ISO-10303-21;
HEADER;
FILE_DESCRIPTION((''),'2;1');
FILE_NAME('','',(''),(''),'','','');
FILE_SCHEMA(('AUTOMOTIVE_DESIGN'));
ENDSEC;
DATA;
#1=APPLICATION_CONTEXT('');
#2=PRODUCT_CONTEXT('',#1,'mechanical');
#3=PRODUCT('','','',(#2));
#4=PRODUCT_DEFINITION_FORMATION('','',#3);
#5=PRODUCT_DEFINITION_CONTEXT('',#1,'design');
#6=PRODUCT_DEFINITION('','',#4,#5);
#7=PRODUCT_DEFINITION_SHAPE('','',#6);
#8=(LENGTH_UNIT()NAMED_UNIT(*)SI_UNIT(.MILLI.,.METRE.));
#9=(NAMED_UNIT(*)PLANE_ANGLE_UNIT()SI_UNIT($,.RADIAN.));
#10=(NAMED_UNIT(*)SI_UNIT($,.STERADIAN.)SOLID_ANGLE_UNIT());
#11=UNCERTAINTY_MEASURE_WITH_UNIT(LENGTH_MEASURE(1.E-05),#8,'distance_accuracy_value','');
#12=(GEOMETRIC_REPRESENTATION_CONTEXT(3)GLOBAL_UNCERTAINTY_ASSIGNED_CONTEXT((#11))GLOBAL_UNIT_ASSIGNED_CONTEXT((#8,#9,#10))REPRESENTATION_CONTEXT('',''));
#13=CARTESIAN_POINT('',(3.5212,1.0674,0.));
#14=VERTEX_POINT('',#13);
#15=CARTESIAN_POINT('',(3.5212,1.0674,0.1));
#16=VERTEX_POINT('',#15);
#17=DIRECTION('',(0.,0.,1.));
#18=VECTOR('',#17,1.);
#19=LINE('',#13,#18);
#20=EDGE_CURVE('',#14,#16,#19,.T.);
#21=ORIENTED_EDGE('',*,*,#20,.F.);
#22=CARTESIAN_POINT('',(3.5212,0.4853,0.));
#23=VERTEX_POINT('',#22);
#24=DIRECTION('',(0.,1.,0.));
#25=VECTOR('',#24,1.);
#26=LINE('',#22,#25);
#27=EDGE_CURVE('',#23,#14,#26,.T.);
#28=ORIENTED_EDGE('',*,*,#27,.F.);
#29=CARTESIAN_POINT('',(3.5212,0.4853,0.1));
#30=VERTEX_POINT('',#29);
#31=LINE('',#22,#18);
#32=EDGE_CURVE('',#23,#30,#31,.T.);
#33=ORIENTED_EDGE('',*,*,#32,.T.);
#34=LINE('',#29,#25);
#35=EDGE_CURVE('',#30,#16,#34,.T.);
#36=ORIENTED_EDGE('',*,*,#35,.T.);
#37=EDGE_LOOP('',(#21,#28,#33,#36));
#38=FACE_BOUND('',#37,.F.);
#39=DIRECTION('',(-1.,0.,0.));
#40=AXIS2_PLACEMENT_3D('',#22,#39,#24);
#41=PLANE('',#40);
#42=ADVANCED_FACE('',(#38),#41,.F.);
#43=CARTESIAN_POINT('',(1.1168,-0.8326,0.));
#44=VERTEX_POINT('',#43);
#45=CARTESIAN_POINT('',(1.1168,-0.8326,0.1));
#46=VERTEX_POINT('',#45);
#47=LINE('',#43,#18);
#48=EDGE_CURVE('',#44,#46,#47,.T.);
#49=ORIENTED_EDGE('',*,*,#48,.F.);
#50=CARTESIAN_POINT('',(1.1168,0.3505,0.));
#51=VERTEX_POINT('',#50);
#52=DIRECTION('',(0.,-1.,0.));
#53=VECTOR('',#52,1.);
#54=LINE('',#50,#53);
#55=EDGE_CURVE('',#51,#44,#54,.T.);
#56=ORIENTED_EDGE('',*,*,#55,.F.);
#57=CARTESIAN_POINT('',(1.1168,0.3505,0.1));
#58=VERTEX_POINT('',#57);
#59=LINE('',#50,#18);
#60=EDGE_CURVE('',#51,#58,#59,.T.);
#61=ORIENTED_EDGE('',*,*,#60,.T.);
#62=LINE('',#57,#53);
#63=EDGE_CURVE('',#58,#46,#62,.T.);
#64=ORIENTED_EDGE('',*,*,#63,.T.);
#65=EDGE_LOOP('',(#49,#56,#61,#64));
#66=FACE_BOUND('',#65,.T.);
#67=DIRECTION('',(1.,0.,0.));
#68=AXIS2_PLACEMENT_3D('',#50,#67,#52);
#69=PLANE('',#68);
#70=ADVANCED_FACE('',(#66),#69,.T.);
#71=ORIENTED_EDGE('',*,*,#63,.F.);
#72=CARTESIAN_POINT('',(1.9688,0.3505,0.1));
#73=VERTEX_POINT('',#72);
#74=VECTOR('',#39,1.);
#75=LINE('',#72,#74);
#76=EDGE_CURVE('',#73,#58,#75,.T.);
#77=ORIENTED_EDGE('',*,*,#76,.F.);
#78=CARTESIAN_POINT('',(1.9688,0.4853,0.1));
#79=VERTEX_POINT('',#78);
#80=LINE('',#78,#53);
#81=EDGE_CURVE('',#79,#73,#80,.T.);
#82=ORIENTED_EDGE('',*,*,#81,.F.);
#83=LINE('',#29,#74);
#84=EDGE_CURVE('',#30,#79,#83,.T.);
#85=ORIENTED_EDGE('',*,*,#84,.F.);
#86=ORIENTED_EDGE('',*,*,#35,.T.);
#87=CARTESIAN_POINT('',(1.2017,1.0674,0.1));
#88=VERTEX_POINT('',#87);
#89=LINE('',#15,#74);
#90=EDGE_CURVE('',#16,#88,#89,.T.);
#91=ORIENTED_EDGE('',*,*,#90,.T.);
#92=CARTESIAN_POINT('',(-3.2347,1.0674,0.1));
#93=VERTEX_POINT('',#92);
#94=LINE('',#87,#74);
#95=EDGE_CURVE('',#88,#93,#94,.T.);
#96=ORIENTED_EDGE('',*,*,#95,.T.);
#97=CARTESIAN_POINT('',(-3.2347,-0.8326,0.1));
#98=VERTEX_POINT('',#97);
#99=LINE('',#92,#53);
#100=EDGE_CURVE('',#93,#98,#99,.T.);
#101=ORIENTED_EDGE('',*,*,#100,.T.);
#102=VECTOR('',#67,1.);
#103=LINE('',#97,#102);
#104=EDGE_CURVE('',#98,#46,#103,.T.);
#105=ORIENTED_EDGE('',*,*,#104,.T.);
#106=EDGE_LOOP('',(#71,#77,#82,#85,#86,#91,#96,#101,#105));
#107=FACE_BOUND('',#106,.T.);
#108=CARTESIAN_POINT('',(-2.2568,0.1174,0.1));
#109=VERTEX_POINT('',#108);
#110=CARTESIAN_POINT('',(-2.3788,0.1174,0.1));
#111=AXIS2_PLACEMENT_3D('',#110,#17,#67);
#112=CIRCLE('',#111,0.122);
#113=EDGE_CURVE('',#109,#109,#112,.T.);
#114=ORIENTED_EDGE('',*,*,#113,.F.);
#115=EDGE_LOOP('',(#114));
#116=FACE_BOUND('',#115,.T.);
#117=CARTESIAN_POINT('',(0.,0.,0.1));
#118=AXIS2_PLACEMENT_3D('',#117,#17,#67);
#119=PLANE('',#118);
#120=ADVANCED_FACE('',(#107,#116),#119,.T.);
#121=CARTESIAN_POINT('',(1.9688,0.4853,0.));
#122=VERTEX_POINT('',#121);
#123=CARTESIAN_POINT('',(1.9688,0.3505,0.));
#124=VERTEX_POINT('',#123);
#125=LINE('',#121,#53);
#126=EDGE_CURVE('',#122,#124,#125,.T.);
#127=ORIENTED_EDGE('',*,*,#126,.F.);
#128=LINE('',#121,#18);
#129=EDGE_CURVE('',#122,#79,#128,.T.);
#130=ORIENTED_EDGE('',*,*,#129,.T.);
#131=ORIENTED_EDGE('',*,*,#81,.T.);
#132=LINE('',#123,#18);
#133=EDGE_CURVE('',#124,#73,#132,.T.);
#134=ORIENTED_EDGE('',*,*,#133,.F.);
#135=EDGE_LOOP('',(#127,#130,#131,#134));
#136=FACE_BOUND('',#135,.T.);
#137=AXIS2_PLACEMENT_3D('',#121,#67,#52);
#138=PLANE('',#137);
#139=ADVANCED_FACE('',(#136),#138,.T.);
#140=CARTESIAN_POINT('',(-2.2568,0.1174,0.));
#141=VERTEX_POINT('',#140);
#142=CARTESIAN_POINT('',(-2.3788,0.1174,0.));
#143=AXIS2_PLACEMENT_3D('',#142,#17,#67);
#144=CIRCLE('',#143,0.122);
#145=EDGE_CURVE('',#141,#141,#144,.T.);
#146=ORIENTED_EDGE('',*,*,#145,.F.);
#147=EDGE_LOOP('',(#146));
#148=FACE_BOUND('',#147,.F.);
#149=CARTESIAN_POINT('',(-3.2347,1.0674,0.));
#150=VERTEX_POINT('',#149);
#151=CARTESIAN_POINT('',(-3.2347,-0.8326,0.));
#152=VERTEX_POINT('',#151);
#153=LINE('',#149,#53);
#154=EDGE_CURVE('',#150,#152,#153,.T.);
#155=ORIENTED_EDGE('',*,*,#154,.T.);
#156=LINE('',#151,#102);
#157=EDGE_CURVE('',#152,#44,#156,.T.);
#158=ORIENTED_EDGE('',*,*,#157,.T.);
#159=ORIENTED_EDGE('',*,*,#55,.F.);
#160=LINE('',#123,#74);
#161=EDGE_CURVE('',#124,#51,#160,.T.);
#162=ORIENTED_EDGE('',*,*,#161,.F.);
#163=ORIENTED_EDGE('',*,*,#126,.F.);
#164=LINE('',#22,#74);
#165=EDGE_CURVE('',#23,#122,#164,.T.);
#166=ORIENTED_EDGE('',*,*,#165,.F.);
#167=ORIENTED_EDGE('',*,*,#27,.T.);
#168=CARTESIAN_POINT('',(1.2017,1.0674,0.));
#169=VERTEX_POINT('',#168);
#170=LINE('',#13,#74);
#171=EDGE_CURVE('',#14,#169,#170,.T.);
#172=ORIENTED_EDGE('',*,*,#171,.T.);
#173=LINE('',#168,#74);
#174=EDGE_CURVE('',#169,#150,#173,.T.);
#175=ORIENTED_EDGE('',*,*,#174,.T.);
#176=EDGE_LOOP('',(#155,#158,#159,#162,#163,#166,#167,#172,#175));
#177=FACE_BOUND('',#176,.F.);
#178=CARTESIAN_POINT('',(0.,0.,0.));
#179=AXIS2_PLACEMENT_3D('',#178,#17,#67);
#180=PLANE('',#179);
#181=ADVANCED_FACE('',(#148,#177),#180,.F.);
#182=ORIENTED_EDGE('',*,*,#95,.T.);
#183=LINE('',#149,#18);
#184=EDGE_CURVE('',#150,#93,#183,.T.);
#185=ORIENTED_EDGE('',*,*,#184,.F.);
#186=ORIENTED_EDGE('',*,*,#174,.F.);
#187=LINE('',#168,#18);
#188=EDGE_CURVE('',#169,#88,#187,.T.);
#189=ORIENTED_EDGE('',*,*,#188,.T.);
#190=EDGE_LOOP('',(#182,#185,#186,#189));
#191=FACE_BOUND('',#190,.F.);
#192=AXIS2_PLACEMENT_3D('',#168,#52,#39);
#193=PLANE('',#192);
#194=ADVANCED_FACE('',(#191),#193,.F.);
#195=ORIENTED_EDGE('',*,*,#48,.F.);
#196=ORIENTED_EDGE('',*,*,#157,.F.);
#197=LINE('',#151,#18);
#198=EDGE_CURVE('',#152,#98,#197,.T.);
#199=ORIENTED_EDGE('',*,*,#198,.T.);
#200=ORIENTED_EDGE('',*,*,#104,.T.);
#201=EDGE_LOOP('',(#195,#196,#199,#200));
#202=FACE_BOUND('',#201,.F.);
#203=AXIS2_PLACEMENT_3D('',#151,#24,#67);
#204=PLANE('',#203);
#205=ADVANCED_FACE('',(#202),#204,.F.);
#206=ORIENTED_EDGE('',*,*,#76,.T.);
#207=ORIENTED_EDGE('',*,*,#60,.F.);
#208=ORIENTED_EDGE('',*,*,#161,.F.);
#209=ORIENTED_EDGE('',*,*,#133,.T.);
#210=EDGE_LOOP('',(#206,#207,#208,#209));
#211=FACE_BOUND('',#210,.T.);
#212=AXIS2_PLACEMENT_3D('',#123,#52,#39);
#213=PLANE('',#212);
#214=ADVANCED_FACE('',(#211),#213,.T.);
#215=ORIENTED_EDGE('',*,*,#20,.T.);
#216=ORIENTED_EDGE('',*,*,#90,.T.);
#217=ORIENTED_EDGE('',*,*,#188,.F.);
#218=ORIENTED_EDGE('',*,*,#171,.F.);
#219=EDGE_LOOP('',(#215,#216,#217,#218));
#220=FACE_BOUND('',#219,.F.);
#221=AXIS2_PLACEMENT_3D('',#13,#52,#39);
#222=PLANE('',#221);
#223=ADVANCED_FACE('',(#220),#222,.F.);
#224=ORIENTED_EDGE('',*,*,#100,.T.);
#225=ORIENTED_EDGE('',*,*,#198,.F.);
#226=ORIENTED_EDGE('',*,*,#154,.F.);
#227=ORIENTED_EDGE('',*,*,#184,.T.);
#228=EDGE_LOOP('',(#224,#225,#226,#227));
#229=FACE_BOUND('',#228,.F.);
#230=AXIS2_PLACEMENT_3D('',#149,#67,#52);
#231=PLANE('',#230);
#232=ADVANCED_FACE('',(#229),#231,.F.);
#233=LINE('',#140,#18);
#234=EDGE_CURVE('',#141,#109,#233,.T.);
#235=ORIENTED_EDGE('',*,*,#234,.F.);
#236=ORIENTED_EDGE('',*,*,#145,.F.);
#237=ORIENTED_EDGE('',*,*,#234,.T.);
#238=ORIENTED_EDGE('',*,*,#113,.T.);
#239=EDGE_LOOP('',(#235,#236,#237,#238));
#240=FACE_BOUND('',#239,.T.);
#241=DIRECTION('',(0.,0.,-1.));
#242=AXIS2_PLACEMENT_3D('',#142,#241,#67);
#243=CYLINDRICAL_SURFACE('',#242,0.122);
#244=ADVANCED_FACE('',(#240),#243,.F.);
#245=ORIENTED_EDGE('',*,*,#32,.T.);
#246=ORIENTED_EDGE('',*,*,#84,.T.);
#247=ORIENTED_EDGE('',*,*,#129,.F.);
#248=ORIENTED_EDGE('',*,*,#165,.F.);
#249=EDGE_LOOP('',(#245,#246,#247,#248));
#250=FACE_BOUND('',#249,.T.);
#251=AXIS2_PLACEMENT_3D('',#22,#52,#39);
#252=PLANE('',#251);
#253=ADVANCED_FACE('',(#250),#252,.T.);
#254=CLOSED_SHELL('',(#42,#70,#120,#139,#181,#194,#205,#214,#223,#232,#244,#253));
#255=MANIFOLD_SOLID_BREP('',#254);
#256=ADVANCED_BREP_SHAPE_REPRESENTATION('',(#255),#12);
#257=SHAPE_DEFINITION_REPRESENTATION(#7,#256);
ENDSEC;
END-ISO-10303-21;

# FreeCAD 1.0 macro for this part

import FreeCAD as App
import Part
import Sketcher

V = App.Vector
Q = App.Units.Quantity


def add_polygon(sketch, points):
    """Adds a closed chain of lines whose ends are joined by coincident constraints."""
    first, n = sketch.GeometryCount, len(points)
    for a, b in zip(points, points[1:] + points[:1]):
        sketch.addGeometry(Part.LineSegment(App.Vector(*a, 0), App.Vector(*b, 0)), False)
    for i in range(n):
        sketch.addConstraint(Sketcher.Constraint("Coincident", first + i, 2, first + (i + 1) % n, 1))

doc = App.newDocument("Part")
body = doc.addObject("PartDesign::Body", "Body")

sketch1 = body.newObject("Sketcher::SketchObject", "Sketch")
sketch1.AttachmentSupport = (doc.getObject("XY_Plane"), [""])
sketch1.MapMode = "FlatFace"
add_polygon(sketch1, [(3.52, 1.07), (-3.23, 1.07), (-3.23, -0.83), (1.12, -0.83), (1.12, 0.35), (1.97, 0.35), (1.97, 0.49), (3.52, 0.49)])
sketch1.addGeometry(Part.Circle(V(-2.38, 0.12, 0), V(0, 0, 1), 0.12), False)
sketch1.addConstraint(Sketcher.Constraint("Horizontal", 0))
sketch1.addConstraint(Sketcher.Constraint("Vertical", 1))
sketch1.addConstraint(Sketcher.Constraint("Horizontal", 2))
sketch1.addConstraint(Sketcher.Constraint("Vertical", 3))
sketch1.addConstraint(Sketcher.Constraint("Horizontal", 4))
sketch1.addConstraint(Sketcher.Constraint("Vertical", 5))
sketch1.addConstraint(Sketcher.Constraint("Horizontal", 6))
sketch1.addConstraint(Sketcher.Constraint("Vertical", 7))
sketch1.addConstraint(Sketcher.Constraint("Diameter", 8, Q("0.244 mm")))
sketch1.addConstraint(Sketcher.Constraint("DistanceY", 1, 2, 1, 1, Q("1.9 mm")))
sketch1.addConstraint(Sketcher.Constraint("DistanceX", 8, 3, 6, 2, Q("5.9 mm")))
sketch1.addConstraint(Sketcher.Constraint("DistanceX", 0, 2, 0, 1, Q("6.756 mm")))
sketch1.addConstraint(Sketcher.Constraint("DistanceX", 4, 1, 4, 2, Q("0.852 mm")))
sketch1.addConstraint(Sketcher.Constraint("DistanceY", 3, 1, 3, 2, Q("1.183 mm")))
sketch1.addConstraint(Sketcher.Constraint("DistanceY", 7, 1, 7, 2, Q("0.582 mm")))
sketch1.addConstraint(Sketcher.Constraint("DistanceY", 8, 3, 0, 2, Q("0.95 mm")))
sketch1.addConstraint(Sketcher.Constraint("DistanceX", 2, 1, 2, 2, Q("4.3515 mm")))
sketch1.addConstraint(Sketcher.Constraint("DistanceX", 8, 3, -1, 1, Q("2.3788 mm")))
sketch1.addConstraint(Sketcher.Constraint("DistanceY", -1, 1, 8, 3, Q("0.1174 mm")))
pad1 = body.newObject("PartDesign::Pad", "Pad")
pad1.Profile = sketch1
pad1.Length = 0.1

doc.recompute()
